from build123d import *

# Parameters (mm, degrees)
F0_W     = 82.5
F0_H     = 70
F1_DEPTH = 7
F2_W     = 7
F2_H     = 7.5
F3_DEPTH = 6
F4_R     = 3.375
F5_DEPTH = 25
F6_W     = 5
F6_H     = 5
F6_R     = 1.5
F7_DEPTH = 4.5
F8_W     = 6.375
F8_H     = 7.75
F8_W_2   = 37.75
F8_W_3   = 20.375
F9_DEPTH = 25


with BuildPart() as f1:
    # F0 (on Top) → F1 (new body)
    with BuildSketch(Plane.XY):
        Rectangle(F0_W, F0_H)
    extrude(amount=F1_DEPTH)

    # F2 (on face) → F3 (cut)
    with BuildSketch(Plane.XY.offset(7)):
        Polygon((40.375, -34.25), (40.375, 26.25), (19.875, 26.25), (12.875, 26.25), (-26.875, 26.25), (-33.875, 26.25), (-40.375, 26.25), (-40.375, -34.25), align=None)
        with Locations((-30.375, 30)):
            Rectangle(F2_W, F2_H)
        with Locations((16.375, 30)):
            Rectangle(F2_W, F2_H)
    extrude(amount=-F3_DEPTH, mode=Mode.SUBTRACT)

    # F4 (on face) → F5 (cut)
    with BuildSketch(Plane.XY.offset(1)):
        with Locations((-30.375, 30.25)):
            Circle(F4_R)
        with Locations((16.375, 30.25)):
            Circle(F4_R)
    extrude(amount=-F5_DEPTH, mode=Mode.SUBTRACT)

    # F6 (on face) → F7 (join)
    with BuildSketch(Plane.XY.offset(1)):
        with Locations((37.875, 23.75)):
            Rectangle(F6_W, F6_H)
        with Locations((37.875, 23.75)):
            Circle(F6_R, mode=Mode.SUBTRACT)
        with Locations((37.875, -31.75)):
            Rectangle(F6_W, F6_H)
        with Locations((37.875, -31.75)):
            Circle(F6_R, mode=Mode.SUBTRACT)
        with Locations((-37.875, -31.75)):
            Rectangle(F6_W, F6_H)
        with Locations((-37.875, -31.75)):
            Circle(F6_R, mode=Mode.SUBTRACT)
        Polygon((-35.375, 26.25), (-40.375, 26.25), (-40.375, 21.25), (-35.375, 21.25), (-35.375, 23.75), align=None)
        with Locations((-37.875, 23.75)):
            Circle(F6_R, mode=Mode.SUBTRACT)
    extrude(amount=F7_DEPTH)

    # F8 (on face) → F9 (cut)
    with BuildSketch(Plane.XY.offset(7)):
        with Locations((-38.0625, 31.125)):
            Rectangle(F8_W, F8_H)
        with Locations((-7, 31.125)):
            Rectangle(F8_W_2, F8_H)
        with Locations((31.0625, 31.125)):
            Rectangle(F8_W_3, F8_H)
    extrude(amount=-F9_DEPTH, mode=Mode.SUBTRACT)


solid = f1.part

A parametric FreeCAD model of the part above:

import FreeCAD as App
import Part
import Sketcher

V = App.Vector
Q = App.Units.Quantity

doc = App.newDocument("Part")
body = doc.addObject("PartDesign::Body", "Body")

sketch1 = body.newObject("Sketcher::SketchObject", "Sketch")
sketch1.AttachmentSupport = (doc.getObject("XY_Plane"), [""])
sketch1.MapMode = "FlatFace"
sketch1.addGeometry([
    Part.LineSegment(V(-41, 35, 0), V(-41, -35, 0)),
    Part.LineSegment(V(-41, -35, 0), V(41, -35, 0)),
    Part.LineSegment(V(41, -35, 0), V(41, 35, 0)),
    Part.LineSegment(V(41, 35, 0), V(-41, 35, 0)),
], False)
sketch1.addConstraint([
    Sketcher.Constraint("Coincident", 0, 2, 1, 1),
    Sketcher.Constraint("Coincident", 1, 2, 2, 1),
    Sketcher.Constraint("Coincident", 2, 2, 3, 1),
    Sketcher.Constraint("Coincident", 3, 2, 0, 1),
    Sketcher.Constraint("Vertical", 0),
    Sketcher.Constraint("Horizontal", 1),
    Sketcher.Constraint("Vertical", 2),
    Sketcher.Constraint("Horizontal", 3),
    Sketcher.Constraint("Symmetric", 0, 2, 2, 2, -1, 1),
    Sketcher.Constraint("DistanceY", 0, 2, 0, 1, Q("70 mm")),
    Sketcher.Constraint("DistanceX", 1, 1, 1, 2, Q("82.5 mm")),
])
pad1 = body.newObject("PartDesign::Pad", "Pad")
pad1.Profile = sketch1
pad1.Length = 7

sketch2 = body.newObject("Sketcher::SketchObject", "Sketch001")
sketch2.AttachmentSupport = (doc.getObject("XY_Plane"), [""])
sketch2.MapMode = "FlatFace"
sketch2.AttachmentOffset = App.Placement(V(0, 0, 7), App.Rotation())
sketch2.addGeometry([
    Part.LineSegment(V(40, -34, 0), V(40, 26, 0)),
    Part.LineSegment(V(40, 26, 0), V(20, 26, 0)),
    Part.LineSegment(V(20, 26, 0), V(20, 34, 0)),
    Part.LineSegment(V(20, 34, 0), V(13, 34, 0)),
    Part.LineSegment(V(13, 34, 0), V(13, 26, 0)),
    Part.LineSegment(V(13, 26, 0), V(-27, 26, 0)),
    Part.LineSegment(V(-27, 26, 0), V(-27, 34, 0)),
    Part.LineSegment(V(-27, 34, 0), V(-34, 34, 0)),
    Part.LineSegment(V(-34, 34, 0), V(-34, 26, 0)),
    Part.LineSegment(V(-34, 26, 0), V(-40, 26, 0)),
    Part.LineSegment(V(-40, 26, 0), V(-40, -34, 0)),
    Part.LineSegment(V(-40, -34, 0), V(40, -34, 0)),
], False)
sketch2.addConstraint([
    Sketcher.Constraint("Coincident", 0, 2, 1, 1),
    Sketcher.Constraint("Coincident", 1, 2, 2, 1),
    Sketcher.Constraint("Coincident", 2, 2, 3, 1),
    Sketcher.Constraint("Coincident", 3, 2, 4, 1),
    Sketcher.Constraint("Coincident", 4, 2, 5, 1),
    Sketcher.Constraint("Coincident", 5, 2, 6, 1),
    Sketcher.Constraint("Coincident", 6, 2, 7, 1),
    Sketcher.Constraint("Coincident", 7, 2, 8, 1),
    Sketcher.Constraint("Coincident", 8, 2, 9, 1),
    Sketcher.Constraint("Coincident", 9, 2, 10, 1),
    Sketcher.Constraint("Coincident", 10, 2, 11, 1),
    Sketcher.Constraint("Coincident", 11, 2, 0, 1),
    Sketcher.Constraint("Vertical", 0),
    Sketcher.Constraint("Horizontal", 1),
    Sketcher.Constraint("Vertical", 2),
    Sketcher.Constraint("Horizontal", 3),
    Sketcher.Constraint("Vertical", 4),
    Sketcher.Constraint("Horizontal", 5),
    Sketcher.Constraint("Vertical", 6),
    Sketcher.Constraint("Horizontal", 7),
    Sketcher.Constraint("Vertical", 8),
    Sketcher.Constraint("Horizontal", 9),
    Sketcher.Constraint("Vertical", 10),
    Sketcher.Constraint("Horizontal", 11),
    Sketcher.Constraint("Symmetric", 0, 2, 9, 2, -2),
    Sketcher.Constraint("Horizontal", 1, 2, 4, 2),
    Sketcher.Constraint("Horizontal", 3, 2, 6, 2),
    Sketcher.Constraint("Equal", 3, 7),
    Sketcher.Constraint("DistanceX", 3, 2, 3, 1, Q("7 mm")),
    Sketcher.Constraint("DistanceX", 1, 2, 1, 1, Q("20.5 mm")),
    Sketcher.Constraint("DistanceX", 9, 2, 9, 1, Q("6.5 mm")),
    Sketcher.Constraint("DistanceY", 0, 1, 0, 2, Q("60.5 mm")),
    Sketcher.Constraint("DistanceY", 2, 1, 2, 2, Q("7.5 mm")),
    Sketcher.Constraint("DistanceX", 5, 2, 5, 1, Q("39.75 mm")),
    Sketcher.Constraint("DistanceY", -1, 1, 0, 2, Q("26.25 mm")),
])
pocket1 = body.newObject("PartDesign::Pocket", "Pocket")
pocket1.Profile = sketch2
pocket1.Length = 6

sketch3 = body.newObject("Sketcher::SketchObject", "Sketch002")
sketch3.AttachmentSupport = (doc.getObject("XY_Plane"), [""])
sketch3.MapMode = "FlatFace"
sketch3.AttachmentOffset = App.Placement(V(0, 0, 1), App.Rotation())
sketch3.addGeometry([
    Part.Circle(V(-30.4, 30.2, 0), V(0, 0, 1), 3.4),
    Part.Circle(V(16.4, 30.2, 0), V(0, 0, 1), 3.4),
], False)
sketch3.addConstraint([
    Sketcher.Constraint("Equal", 0, 1),
    Sketcher.Constraint("Horizontal", 0, 3, 1, 3),
    Sketcher.Constraint("Diameter", 0, Q("6.75 mm")),
    Sketcher.Constraint("DistanceY", -1, 1, 0, 3, Q("30.25 mm")),
    Sketcher.Constraint("DistanceX", 0, 3, 1, 3, Q("46.75 mm")),
    Sketcher.Constraint("DistanceX", 0, 3, -1, 1, Q("30.375 mm")),
])
pocket2 = body.newObject("PartDesign::Pocket", "Pocket001")
pocket2.Profile = sketch3
pocket2.Length = 25

sketch4 = body.newObject("Sketcher::SketchObject", "Sketch003")
sketch4.AttachmentSupport = (doc.getObject("XY_Plane"), [""])
sketch4.MapMode = "FlatFace"
sketch4.AttachmentOffset = App.Placement(V(0, 0, 1), App.Rotation())
sketch4.addGeometry([
    Part.LineSegment(V(35.4, 26.2, 0), V(35.4, 21.2, 0)),
    Part.LineSegment(V(35.4, 21.2, 0), V(40.4, 21.2, 0)),
    Part.LineSegment(V(40.4, 21.2, 0), V(40.4, 26.2, 0)),
    Part.LineSegment(V(40.4, 26.2, 0), V(35.4, 26.2, 0)),
    Part.Circle(V(37.9, 23.8, 0), V(0, 0, 1), 1.5),
    Part.LineSegment(V(35.4, -29.2, 0), V(35.4, -34.2, 0)),
    Part.LineSegment(V(35.4, -34.2, 0), V(40.4, -34.2, 0)),
    Part.LineSegment(V(40.4, -34.2, 0), V(40.4, -29.2, 0)),
    Part.LineSegment(V(40.4, -29.2, 0), V(35.4, -29.2, 0)),
    Part.Circle(V(37.9, -31.8, 0), V(0, 0, 1), 1.5),
    Part.LineSegment(V(-40.4, -29.2, 0), V(-40.4, -34.2, 0)),
    Part.LineSegment(V(-40.4, -34.2, 0), V(-35.4, -34.2, 0)),
    Part.LineSegment(V(-35.4, -34.2, 0), V(-35.4, -29.2, 0)),
    Part.LineSegment(V(-35.4, -29.2, 0), V(-40.4, -29.2, 0)),
    Part.Circle(V(-37.9, -31.8, 0), V(0, 0, 1), 1.5),
    Part.LineSegment(V(-35.4, 26.2, 0), V(-40.4, 26.2, 0)),
    Part.LineSegment(V(-40.4, 26.2, 0), V(-40.4, 21.2, 0)),
    Part.LineSegment(V(-40.4, 21.2, 0), V(-35.4, 21.2, 0)),
    Part.LineSegment(V(-35.4, 21.2, 0), V(-35.4, 26.2, 0)),
    Part.Circle(V(-37.9, 23.8, 0), V(0, 0, 1), 1.5),
], False)
sketch4.addConstraint([
    Sketcher.Constraint("Coincident", 0, 2, 1, 1),
    Sketcher.Constraint("Coincident", 1, 2, 2, 1),
    Sketcher.Constraint("Coincident", 2, 2, 3, 1),
    Sketcher.Constraint("Coincident", 3, 2, 0, 1),
    Sketcher.Constraint("Coincident", 5, 2, 6, 1),
    Sketcher.Constraint("Coincident", 6, 2, 7, 1),
    Sketcher.Constraint("Coincident", 7, 2, 8, 1),
    Sketcher.Constraint("Coincident", 8, 2, 5, 1),
    Sketcher.Constraint("Coincident", 10, 2, 11, 1),
    Sketcher.Constraint("Coincident", 11, 2, 12, 1),
    Sketcher.Constraint("Coincident", 12, 2, 13, 1),
    Sketcher.Constraint("Coincident", 13, 2, 10, 1),
    Sketcher.Constraint("Coincident", 15, 2, 16, 1),
    Sketcher.Constraint("Coincident", 16, 2, 17, 1),
    Sketcher.Constraint("Coincident", 17, 2, 18, 1),
    Sketcher.Constraint("Coincident", 18, 2, 15, 1),
    Sketcher.Constraint("Vertical", 0),
    Sketcher.Constraint("Horizontal", 1),
    Sketcher.Constraint("Vertical", 2),
    Sketcher.Constraint("Horizontal", 3),
    Sketcher.Constraint("Vertical", 5),
    Sketcher.Constraint("Horizontal", 6),
    Sketcher.Constraint("Vertical", 7),
    Sketcher.Constraint("Horizontal", 8),
    Sketcher.Constraint("Vertical", 10),
    Sketcher.Constraint("Horizontal", 11),
    Sketcher.Constraint("Vertical", 12),
    Sketcher.Constraint("Horizontal", 13),
    Sketcher.Constraint("Horizontal", 15),
    Sketcher.Constraint("Vertical", 16),
    Sketcher.Constraint("Horizontal", 17),
    Sketcher.Constraint("Vertical", 18),
    Sketcher.Constraint("Equal", 4, 9),
    Sketcher.Constraint("Equal", 9, 14),
    Sketcher.Constraint("Equal", 14, 19),
    Sketcher.Constraint("Symmetric", 9, 3, 14, 3, -2),
    Sketcher.Constraint("Symmetric", 4, 3, 19, 3, -2),
    Sketcher.Constraint("Symmetric", 6, 2, 10, 2, -2),
    Sketcher.Constraint("Symmetric", 8, 2, 12, 2, -2),
    Sketcher.Constraint("Symmetric", 2, 2, 15, 2, -2),
    Sketcher.Constraint("Symmetric", 0, 2, 17, 2, -2),
    Sketcher.Constraint("Vertical", 4, 3, 9, 3),
    Sketcher.Constraint("Vertical", 3, 2, 5, 2),
    Sketcher.Constraint("Vertical", 2, 2, 6, 2),
    Sketcher.Constraint("Equal", 17, 0),
    Sketcher.Constraint("Equal", 2, 5),
    Sketcher.Constraint("Diameter", 4, Q("3 mm")),
    Sketcher.Constraint("DistanceX", 1, 1, 1, 2, Q("5 mm")),
    Sketcher.Constraint("DistanceY", 9, 3, 0, 2, Q("53 mm")),
    Sketcher.Constraint("DistanceY", 5, 2, 4, 3, Q("58 mm")),
    Sketcher.Constraint("DistanceY", 9, 3, 4, 3, Q("55.5 mm")),
    Sketcher.Constraint("DistanceX", 0, 2, 4, 3, Q("2.5 mm")),
    Sketcher.Constraint("DistanceY", -1, 1, 4, 3, Q("23.75 mm")),
    Sketcher.Constraint("DistanceX", 14, 3, 9, 3, Q("75.75 mm")),
])
pad2 = body.newObject("PartDesign::Pad", "Pad001")
pad2.Profile = sketch4
pad2.Length = 4.5

sketch5 = body.newObject("Sketcher::SketchObject", "Sketch004")
sketch5.AttachmentSupport = (doc.getObject("XY_Plane"), [""])
sketch5.MapMode = "FlatFace"
sketch5.AttachmentOffset = App.Placement(V(0, 0, 7), App.Rotation())
sketch5.addGeometry([
    Part.LineSegment(V(-41, 35, 0), V(-41, 27, 0)),
    Part.LineSegment(V(-41, 27, 0), V(-35, 27, 0)),
    Part.LineSegment(V(-35, 27, 0), V(-35, 35, 0)),
    Part.LineSegment(V(-35, 35, 0), V(-41, 35, 0)),
    Part.LineSegment(V(-26, 35, 0), V(-26, 27, 0)),
    Part.LineSegment(V(-26, 27, 0), V(12, 27, 0)),
    Part.LineSegment(V(12, 27, 0), V(12, 35, 0)),
    Part.LineSegment(V(12, 35, 0), V(-26, 35, 0)),
    Part.LineSegment(V(21, 35, 0), V(21, 27, 0)),
    Part.LineSegment(V(21, 27, 0), V(41, 27, 0)),
    Part.LineSegment(V(41, 27, 0), V(41, 35, 0)),
    Part.LineSegment(V(41, 35, 0), V(21, 35, 0)),
], False)
sketch5.addConstraint([
    Sketcher.Constraint("Coincident", 0, 2, 1, 1),
    Sketcher.Constraint("Coincident", 1, 2, 2, 1),
    Sketcher.Constraint("Coincident", 2, 2, 3, 1),
    Sketcher.Constraint("Coincident", 3, 2, 0, 1),
    Sketcher.Constraint("Coincident", 4, 2, 5, 1),
    Sketcher.Constraint("Coincident", 5, 2, 6, 1),
    Sketcher.Constraint("Coincident", 6, 2, 7, 1),
    Sketcher.Constraint("Coincident", 7, 2, 4, 1),
    Sketcher.Constraint("Coincident", 8, 2, 9, 1),
    Sketcher.Constraint("Coincident", 9, 2, 10, 1),
    Sketcher.Constraint("Coincident", 10, 2, 11, 1),
    Sketcher.Constraint("Coincident", 11, 2, 8, 1),
    Sketcher.Constraint("Vertical", 0),
    Sketcher.Constraint("Horizontal", 1),
    Sketcher.Constraint("Vertical", 2),
    Sketcher.Constraint("Horizontal", 3),
    Sketcher.Constraint("Vertical", 4),
    Sketcher.Constraint("Horizontal", 5),
    Sketcher.Constraint("Vertical", 6),
    Sketcher.Constraint("Horizontal", 7),
    Sketcher.Constraint("Vertical", 8),
    Sketcher.Constraint("Horizontal", 9),
    Sketcher.Constraint("Vertical", 10),
    Sketcher.Constraint("Horizontal", 11),
    Sketcher.Constraint("Symmetric", 0, 2, 9, 2, -2),
    Sketcher.Constraint("Horizontal", 1, 2, 4, 2),
    Sketcher.Constraint("Horizontal", 3, 2, 6, 2),
    Sketcher.Constraint("Horizontal", 7, 2, 10, 2),
    Sketcher.Constraint("DistanceY", -1, 1, 2, 2, Q("35 mm")),
    Sketcher.Constraint("DistanceX", 1, 2, 4, 2, Q("9 mm")),
    Sketcher.Constraint("DistanceX", 5, 2, 8, 2, Q("9 mm")),
    Sketcher.Constraint("DistanceX", 5, 1, 5, 2, Q("37.75 mm")),
    Sketcher.Constraint("DistanceY", 0, 2, 0, 1, Q("7.75 mm")),
    Sketcher.Constraint("DistanceX", 1, 1, 1, 2, Q("6.375 mm")),
    Sketcher.Constraint("DistanceX", 9, 1, 9, 2, Q("20.375 mm")),
])
pocket3 = body.newObject("PartDesign::Pocket", "Pocket002")
pocket3.Profile = sketch5
pocket3.Length = 25

doc.recompute()
